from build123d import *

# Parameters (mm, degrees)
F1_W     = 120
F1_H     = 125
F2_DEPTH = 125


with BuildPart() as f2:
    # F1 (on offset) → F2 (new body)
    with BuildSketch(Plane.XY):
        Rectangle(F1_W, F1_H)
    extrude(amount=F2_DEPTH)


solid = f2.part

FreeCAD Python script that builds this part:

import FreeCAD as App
import Part
import Sketcher

V = App.Vector
Q = App.Units.Quantity

doc = App.newDocument("Part")
body = doc.addObject("PartDesign::Body", "Body")

sketch1 = body.newObject("Sketcher::SketchObject", "Sketch")
sketch1.AttachmentSupport = (doc.getObject("XY_Plane"), [""])
sketch1.MapMode = "FlatFace"
sketch1.addGeometry(Part.LineSegment(V(-60, 62.5, 0), V(-60, -62.5, 0)), False)
sketch1.addGeometry(Part.LineSegment(V(-60, -62.5, 0), V(60, -62.5, 0)), False)
sketch1.addGeometry(Part.LineSegment(V(60, -62.5, 0), V(60, 62.5, 0)), False)
sketch1.addGeometry(Part.LineSegment(V(60, 62.5, 0), V(-60, 62.5, 0)), False)
sketch1.addConstraint(Sketcher.Constraint("Coincident", 0, 2, 1, 1))
sketch1.addConstraint(Sketcher.Constraint("Coincident", 1, 2, 2, 1))
sketch1.addConstraint(Sketcher.Constraint("Coincident", 2, 2, 3, 1))
sketch1.addConstraint(Sketcher.Constraint("Coincident", 3, 2, 0, 1))
sketch1.addConstraint(Sketcher.Constraint("Vertical", 0))
sketch1.addConstraint(Sketcher.Constraint("Horizontal", 1))
sketch1.addConstraint(Sketcher.Constraint("Vertical", 2))
sketch1.addConstraint(Sketcher.Constraint("Horizontal", 3))
sketch1.addConstraint(Sketcher.Constraint("Symmetric", 0, 2, 2, 2, -1, 1))
sketch1.addConstraint(Sketcher.Constraint("DistanceX", 1, 1, 1, 2, Q("120 mm")))
sketch1.addConstraint(Sketcher.Constraint("DistanceY", 0, 2, 0, 1, Q("125 mm")))
pad1 = body.newObject("PartDesign::Pad", "Pad")
pad1.Profile = sketch1
pad1.Length = 125

doc.recompute()
